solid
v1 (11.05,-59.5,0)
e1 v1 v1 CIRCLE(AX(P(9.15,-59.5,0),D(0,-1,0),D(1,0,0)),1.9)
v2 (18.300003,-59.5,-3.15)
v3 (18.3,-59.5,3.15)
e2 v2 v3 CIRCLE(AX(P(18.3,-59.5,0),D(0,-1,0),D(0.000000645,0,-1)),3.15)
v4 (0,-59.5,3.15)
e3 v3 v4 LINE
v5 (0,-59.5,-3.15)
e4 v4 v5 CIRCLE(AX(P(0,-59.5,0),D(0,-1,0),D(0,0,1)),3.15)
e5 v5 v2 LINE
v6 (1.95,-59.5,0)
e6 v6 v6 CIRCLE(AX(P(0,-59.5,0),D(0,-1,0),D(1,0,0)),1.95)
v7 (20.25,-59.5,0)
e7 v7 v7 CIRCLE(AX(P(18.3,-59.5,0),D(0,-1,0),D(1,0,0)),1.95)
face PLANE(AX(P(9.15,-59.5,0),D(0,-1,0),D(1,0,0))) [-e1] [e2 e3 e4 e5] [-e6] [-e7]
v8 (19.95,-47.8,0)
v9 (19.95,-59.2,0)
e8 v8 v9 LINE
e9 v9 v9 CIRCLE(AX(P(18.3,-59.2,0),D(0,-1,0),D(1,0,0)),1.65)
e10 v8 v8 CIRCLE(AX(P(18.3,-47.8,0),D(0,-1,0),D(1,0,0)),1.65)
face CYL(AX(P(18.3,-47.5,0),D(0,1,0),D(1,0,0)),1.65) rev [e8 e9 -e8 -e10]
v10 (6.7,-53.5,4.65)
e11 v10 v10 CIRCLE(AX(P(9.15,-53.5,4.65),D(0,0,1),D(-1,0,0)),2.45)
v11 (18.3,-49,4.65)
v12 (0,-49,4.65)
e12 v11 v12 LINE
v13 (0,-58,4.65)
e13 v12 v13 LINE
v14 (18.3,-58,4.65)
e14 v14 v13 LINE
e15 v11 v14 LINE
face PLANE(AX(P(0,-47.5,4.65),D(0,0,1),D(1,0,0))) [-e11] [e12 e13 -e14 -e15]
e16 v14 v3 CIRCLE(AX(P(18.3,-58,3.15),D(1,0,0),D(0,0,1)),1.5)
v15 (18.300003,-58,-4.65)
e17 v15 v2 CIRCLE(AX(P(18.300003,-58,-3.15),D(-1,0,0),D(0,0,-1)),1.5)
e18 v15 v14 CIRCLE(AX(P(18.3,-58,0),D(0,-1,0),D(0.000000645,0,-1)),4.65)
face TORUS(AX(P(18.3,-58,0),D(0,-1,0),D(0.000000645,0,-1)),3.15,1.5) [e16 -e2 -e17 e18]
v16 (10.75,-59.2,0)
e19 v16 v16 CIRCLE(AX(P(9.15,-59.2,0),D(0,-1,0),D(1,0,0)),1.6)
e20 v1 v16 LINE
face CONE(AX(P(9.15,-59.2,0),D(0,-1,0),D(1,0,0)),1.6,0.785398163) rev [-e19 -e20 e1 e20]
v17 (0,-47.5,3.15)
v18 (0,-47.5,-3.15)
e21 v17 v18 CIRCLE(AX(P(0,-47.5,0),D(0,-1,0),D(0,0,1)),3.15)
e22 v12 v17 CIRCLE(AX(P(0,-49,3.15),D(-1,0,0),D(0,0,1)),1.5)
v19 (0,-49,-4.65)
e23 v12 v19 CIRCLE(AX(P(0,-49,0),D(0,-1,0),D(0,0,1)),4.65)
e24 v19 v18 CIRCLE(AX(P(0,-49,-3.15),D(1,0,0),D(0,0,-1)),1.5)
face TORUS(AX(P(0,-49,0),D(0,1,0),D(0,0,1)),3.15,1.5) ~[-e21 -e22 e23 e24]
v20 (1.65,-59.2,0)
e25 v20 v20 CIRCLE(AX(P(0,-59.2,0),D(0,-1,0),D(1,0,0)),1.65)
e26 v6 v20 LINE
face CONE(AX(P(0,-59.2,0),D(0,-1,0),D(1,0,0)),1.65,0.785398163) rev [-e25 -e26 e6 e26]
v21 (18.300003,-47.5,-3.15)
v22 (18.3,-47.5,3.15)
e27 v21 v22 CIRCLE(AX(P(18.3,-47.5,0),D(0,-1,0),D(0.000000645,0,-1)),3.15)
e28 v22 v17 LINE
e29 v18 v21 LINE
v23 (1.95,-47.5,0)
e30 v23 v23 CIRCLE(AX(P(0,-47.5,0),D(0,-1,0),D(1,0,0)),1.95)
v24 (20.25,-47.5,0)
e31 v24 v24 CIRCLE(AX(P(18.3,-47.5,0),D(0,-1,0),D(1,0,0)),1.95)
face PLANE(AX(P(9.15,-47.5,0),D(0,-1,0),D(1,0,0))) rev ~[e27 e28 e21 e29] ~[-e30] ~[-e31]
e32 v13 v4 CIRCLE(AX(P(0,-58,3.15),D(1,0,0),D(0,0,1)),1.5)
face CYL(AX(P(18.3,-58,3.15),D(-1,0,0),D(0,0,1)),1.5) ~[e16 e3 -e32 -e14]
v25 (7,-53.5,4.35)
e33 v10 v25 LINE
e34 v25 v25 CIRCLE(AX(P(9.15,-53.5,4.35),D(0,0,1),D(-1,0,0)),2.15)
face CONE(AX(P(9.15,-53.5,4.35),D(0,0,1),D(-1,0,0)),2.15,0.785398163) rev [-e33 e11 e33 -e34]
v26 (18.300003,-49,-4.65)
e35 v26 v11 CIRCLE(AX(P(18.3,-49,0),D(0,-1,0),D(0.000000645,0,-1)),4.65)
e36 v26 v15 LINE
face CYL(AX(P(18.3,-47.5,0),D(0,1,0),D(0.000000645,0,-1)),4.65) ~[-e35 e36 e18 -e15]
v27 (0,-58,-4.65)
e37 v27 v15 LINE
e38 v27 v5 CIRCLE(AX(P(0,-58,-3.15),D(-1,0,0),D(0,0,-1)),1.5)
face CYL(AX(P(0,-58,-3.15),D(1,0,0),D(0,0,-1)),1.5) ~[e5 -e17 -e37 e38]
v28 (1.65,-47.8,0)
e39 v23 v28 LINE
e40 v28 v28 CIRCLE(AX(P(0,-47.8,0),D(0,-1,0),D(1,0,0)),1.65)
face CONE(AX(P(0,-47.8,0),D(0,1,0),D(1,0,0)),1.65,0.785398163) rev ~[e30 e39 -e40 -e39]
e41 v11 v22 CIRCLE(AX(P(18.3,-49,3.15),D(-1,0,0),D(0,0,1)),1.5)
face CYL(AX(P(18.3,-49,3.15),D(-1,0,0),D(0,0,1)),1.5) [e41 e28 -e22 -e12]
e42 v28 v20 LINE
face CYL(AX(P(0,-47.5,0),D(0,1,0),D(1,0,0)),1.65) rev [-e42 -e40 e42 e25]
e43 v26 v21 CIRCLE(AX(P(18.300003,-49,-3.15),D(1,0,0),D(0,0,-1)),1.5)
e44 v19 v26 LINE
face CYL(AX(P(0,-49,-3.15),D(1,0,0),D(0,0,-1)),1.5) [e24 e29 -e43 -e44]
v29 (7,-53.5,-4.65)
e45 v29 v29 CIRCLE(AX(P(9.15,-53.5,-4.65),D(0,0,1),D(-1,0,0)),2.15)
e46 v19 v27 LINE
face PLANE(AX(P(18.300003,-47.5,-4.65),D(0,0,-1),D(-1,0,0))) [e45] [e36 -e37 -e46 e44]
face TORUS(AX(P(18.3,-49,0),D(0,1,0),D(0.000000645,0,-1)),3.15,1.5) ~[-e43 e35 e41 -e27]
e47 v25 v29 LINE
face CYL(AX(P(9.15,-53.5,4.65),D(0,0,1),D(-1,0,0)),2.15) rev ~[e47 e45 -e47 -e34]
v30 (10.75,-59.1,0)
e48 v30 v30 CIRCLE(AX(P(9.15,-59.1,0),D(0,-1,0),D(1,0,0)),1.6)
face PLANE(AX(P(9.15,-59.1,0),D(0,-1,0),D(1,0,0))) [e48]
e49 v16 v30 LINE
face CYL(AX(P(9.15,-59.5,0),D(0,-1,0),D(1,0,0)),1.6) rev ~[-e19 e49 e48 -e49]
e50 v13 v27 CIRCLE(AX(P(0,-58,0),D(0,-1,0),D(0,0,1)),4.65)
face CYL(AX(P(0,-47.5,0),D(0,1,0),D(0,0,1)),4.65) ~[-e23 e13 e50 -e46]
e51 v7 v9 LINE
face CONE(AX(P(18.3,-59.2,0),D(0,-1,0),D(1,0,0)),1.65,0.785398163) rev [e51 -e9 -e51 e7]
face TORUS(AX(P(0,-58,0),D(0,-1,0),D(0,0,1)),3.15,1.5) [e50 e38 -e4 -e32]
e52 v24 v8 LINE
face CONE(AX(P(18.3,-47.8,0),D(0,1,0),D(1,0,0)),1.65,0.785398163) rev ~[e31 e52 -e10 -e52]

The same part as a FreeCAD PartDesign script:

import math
import FreeCAD as App
import Part
import Sketcher
Q = App.Units.Quantity


def edges_at(feature, points):
    """Names of the edges that pass closest to the given points."""
    edges = feature.Shape.Edges
    near = lambda p: min(range(len(edges)), key=lambda i: edges[i].distToShape(Part.Vertex(*p))[0])
    return sorted({f"Edge{near(p) + 1}" for p in points})

doc = App.newDocument("Part")
body = doc.addObject("PartDesign::Body", "Body")

sketch1 = doc.addObject("Sketcher::SketchObject", "Sketch")
body.addObject(sketch1)
sketch1.AttachmentSupport = (doc.XZ_Plane, [""])
sketch1.MapMode = "FlatFace"
sketch1.addGeometry([
    Part.ArcOfCircle(Part.Circle(App.Vector(0, 0, 0), App.Vector(0, 0, 1), 4.7), math.radians(90), math.radians(270)),
    Part.LineSegment(App.Vector(0, -4.7, 0), App.Vector(18.3, -4.7, 0)),
    Part.ArcOfCircle(Part.Circle(App.Vector(18.3, 0, 0), App.Vector(0, 0, 1), 4.7), math.radians(-90), math.radians(90)),
    Part.LineSegment(App.Vector(18.3, 4.7, 0), App.Vector(0, 4.7, 0)),
    Part.Circle(App.Vector(0, 0, 0), App.Vector(0, 0, 1), 1.6),
    Part.Circle(App.Vector(18.3, 0, 0), App.Vector(0, 0, 1), 1.6),
], False)
sketch1.addConstraint([
    Sketcher.Constraint("Tangent", 0, 2, 1, 1),
    Sketcher.Constraint("Tangent", 1, 2, 2, 1),
    Sketcher.Constraint("Tangent", 2, 2, 3, 1),
    Sketcher.Constraint("Tangent", 3, 2, 0, 1),
    Sketcher.Constraint("Horizontal", 1),
    Sketcher.Constraint("Horizontal", 3),
    Sketcher.Constraint("Coincident", 0, 3, -1, 1),
    Sketcher.Constraint("Coincident", 4, 3, -1, 1),
    Sketcher.Constraint("Coincident", 5, 3, 2, 3),
    Sketcher.Constraint("Equal", 4, 5),
    Sketcher.Constraint("Diameter", 4, Q("3.3 mm")),
    Sketcher.Constraint("Radius", 0, Q("4.65 mm")),
    Sketcher.Constraint("DistanceX", 3, 2, 3, 1, Q("18.3 mm")),
])
pad1 = doc.addObject("PartDesign::Pad", "Pad")
body.addObject(pad1)
pad1.Profile = sketch1
pad1.Length = 12

sketch2 = doc.addObject("Sketcher::SketchObject", "Sketch001")
body.addObject(sketch2)
sketch2.AttachmentSupport = (doc.XY_Plane, [""])
sketch2.MapMode = "FlatFace"
sketch2.AttachmentOffset = App.Placement(App.Vector(0, 0, 4.65), App.Rotation())
sketch2.addGeometry(Part.Circle(App.Vector(9.2, -6, 0), App.Vector(0, 0, 1), 2.1), False)
sketch2.addConstraint([
    Sketcher.Constraint("Diameter", 0, Q("4.3 mm")),
    Sketcher.Constraint("DistanceY", 0, 3, -1, 1, Q("6 mm")),
    Sketcher.Constraint("DistanceX", -1, 1, 0, 3, Q("9.15 mm")),
])
pocket1 = doc.addObject("PartDesign::Pocket", "Pocket")
body.addObject(pocket1)
pocket1.Profile = sketch2
pocket1.Length = 20
doc.recompute()

chamfer = doc.addObject("PartDesign::Chamfer", "Chamfer")
body.addObject(chamfer)
chamfer.Base = (pocket1, edges_at(pocket1, [
    (-1.65, -12, 0),
    (11.3, -6, 4.65),
    (16.65, -12, 0),
    (16.65, 0, 0),
    (-1.65, 0, 0),
]))
chamfer.Size = 0.3
doc.recompute()

fillet = doc.addObject("PartDesign::Fillet", "Fillet")
body.addObject(fillet)
fillet.Base = (chamfer, edges_at(chamfer, [(-4.65, 0, 0), (-4.65, -12, 0)]))
fillet.Radius = 1.5

sketch3 = doc.addObject("Sketcher::SketchObject", "Sketch002")
body.addObject(sketch3)
sketch3.AttachmentSupport = (doc.XZ_Plane, [""])
sketch3.MapMode = "FlatFace"
sketch3.AttachmentOffset = App.Placement(App.Vector(0, 0, 12), App.Rotation())
sketch3.addGeometry(Part.Circle(App.Vector(9.2, 0, 0), App.Vector(0, 0, 1), 1.6), False)
sketch3.addConstraint([
    Sketcher.Constraint("PointOnObject", 0, 3, -1),
    Sketcher.Constraint("Diameter", 0, Q("3.2 mm")),
    Sketcher.Constraint("DistanceX", -1, 1, 0, 3, Q("9.15 mm")),
])
pocket2 = doc.addObject("PartDesign::Pocket", "Pocket001")
body.addObject(pocket2)
pocket2.Profile = sketch3
pocket2.Length = 0.4
doc.recompute()

chamfer2 = doc.addObject("PartDesign::Chamfer", "Chamfer001")
body.addObject(chamfer2)
chamfer2.Base = (pocket2, edges_at(pocket2, [(7.55, -12, 0)]))
chamfer2.Size = 0.3
body2 = doc.addObject("PartDesign::Body", "Body001")
doc.recompute()

body.Placement = App.Placement(App.Vector(0, -47.5, 0), App.Rotation(App.Vector(0, 0, 1), 0))
boolean = doc.addObject("PartDesign::Boolean", "Boolean")
body2.addObject(boolean)
boolean.Type = "Fuse"
boolean.addObjects([body])

doc.recompute()
